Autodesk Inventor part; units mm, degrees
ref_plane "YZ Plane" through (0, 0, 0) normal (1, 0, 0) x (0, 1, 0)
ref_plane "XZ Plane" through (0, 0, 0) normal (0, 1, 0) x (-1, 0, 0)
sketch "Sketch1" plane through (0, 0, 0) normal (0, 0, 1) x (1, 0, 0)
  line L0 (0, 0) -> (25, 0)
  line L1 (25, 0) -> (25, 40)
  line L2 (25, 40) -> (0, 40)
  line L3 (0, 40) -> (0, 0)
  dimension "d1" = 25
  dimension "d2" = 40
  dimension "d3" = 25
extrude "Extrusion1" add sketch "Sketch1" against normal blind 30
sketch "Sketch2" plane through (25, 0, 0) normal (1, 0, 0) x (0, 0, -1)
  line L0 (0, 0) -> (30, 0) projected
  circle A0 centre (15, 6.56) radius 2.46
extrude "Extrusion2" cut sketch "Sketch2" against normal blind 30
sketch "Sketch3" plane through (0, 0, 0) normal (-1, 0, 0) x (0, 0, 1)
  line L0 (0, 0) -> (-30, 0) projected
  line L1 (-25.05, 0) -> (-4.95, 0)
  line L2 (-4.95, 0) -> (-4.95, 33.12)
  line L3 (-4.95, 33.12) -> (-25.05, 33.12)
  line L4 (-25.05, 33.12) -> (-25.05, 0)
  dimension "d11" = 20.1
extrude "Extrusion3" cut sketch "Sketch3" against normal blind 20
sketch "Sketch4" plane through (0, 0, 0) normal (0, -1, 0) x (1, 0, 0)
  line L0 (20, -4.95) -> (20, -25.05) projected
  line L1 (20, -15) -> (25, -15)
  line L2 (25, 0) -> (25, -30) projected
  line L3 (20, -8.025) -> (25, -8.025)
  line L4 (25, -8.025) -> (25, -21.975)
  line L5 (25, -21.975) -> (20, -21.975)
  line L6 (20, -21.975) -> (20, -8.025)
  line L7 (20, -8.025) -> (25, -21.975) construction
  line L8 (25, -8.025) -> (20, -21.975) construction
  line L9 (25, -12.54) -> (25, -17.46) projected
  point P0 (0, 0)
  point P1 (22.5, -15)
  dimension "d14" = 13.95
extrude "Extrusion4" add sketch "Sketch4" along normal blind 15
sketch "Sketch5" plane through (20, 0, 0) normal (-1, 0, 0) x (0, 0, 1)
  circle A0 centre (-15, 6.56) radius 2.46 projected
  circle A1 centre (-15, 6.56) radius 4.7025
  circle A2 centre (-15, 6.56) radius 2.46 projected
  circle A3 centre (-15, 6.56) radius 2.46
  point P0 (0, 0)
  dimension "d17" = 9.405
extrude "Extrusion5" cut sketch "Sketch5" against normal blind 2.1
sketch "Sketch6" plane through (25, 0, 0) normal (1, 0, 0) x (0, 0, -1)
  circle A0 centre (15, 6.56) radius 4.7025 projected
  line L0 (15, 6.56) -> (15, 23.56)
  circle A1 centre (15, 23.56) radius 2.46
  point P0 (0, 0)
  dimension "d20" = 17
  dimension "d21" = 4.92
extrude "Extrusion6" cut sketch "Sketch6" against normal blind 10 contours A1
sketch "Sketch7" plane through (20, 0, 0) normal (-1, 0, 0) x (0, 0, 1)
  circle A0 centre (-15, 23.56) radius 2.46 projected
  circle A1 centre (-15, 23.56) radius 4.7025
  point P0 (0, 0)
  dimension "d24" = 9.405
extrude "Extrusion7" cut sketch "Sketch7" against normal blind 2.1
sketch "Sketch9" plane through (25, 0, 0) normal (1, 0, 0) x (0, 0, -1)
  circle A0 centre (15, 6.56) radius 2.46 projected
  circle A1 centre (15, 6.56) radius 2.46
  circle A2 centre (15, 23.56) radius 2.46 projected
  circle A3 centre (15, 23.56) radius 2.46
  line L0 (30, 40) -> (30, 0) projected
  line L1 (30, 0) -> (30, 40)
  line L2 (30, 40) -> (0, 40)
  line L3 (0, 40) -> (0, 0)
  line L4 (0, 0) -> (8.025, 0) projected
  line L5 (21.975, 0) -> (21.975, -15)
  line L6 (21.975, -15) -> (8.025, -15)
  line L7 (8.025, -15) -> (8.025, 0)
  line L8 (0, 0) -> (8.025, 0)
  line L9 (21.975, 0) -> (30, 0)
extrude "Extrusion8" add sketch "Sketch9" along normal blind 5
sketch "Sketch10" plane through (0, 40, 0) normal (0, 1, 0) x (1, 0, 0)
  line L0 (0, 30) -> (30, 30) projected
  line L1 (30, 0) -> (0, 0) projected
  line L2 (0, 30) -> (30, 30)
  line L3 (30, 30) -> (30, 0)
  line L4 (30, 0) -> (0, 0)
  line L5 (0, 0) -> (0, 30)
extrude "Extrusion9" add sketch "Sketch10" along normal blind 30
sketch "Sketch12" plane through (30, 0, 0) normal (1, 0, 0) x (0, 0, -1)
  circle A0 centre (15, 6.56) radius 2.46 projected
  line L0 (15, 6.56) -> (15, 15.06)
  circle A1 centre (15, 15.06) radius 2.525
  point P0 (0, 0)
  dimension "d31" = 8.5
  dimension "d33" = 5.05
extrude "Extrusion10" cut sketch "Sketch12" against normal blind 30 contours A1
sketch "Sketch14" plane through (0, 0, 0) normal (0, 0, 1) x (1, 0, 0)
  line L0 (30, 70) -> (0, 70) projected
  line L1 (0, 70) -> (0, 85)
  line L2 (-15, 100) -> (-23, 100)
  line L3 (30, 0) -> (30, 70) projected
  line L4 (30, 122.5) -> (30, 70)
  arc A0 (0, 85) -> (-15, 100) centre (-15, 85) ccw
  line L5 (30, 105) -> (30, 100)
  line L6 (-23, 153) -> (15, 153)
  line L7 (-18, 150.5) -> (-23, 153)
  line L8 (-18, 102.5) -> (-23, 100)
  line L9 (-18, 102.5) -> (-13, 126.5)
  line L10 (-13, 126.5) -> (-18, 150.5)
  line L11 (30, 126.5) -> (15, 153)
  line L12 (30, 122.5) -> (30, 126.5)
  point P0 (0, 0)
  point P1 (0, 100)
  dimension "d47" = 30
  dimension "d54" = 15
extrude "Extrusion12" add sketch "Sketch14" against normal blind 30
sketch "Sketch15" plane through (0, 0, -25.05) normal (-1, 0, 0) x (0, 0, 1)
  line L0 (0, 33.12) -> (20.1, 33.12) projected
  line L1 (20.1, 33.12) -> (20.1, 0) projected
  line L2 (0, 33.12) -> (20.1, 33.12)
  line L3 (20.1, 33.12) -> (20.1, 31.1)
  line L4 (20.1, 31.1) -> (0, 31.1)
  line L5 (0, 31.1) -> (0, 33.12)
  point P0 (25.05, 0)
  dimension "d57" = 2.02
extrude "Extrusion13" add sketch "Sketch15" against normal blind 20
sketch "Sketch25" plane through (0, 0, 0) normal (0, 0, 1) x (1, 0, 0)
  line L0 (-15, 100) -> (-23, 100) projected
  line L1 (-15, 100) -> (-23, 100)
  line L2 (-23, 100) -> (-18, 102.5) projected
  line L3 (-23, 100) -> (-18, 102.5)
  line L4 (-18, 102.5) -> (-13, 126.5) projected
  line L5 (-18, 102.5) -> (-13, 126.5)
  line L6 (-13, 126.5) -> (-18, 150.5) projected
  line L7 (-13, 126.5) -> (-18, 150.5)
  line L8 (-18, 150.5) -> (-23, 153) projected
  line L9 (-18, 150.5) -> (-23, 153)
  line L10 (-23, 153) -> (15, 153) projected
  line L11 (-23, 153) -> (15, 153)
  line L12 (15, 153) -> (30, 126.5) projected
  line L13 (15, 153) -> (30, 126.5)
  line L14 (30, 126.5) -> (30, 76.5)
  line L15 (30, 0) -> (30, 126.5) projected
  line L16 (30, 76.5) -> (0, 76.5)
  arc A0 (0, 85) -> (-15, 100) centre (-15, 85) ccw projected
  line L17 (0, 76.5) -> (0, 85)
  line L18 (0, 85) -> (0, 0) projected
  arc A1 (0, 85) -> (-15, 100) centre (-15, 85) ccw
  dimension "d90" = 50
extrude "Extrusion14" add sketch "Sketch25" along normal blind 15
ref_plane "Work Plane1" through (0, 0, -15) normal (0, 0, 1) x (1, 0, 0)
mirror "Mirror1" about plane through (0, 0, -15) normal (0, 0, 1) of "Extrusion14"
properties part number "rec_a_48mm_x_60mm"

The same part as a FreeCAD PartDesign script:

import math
import FreeCAD as App
import Part
import Sketcher
Q = App.Units.Quantity


def add_polygon(sketch, points):
    """Adds a closed chain of lines whose ends are joined by coincident constraints."""
    first, n = sketch.GeometryCount, len(points)
    for a, b in zip(points, points[1:] + points[:1]):
        sketch.addGeometry(Part.LineSegment(App.Vector(*a, 0), App.Vector(*b, 0)), False)
    for i in range(n):
        sketch.addConstraint(Sketcher.Constraint("Coincident", first + i, 2, first + (i + 1) % n, 1))

doc = App.newDocument("Part")
body = doc.addObject("PartDesign::Body", "Body")

# Sketch on XY plane
sketch1 = body.newObject("Sketcher::SketchObject", "Sketch")
sketch1.AttachmentSupport = (doc.getObject("XY_Plane"), [""])
sketch1.MapMode = "FlatFace"
add_polygon(sketch1, [(0, 40), (0, 0), (25, 0), (25, 40)])  # lines 0-3
sketch1.addConstraint(Sketcher.Constraint("Vertical", 0))
sketch1.addConstraint(Sketcher.Constraint("Horizontal", 1))
sketch1.addConstraint(Sketcher.Constraint("Vertical", 2))
sketch1.addConstraint(Sketcher.Constraint("Horizontal", 3))
sketch1.addConstraint(Sketcher.Constraint("Coincident", 0, 2, -1, 1))
sketch1.addConstraint(Sketcher.Constraint("DistanceX", 1, 1, 1, 2, Q("25 mm")))
sketch1.addConstraint(Sketcher.Constraint("DistanceY", 0, 2, 0, 1, Q("40 mm")))
pad1 = body.newObject("PartDesign::Pad", "Pad")
pad1.Profile = sketch1
pad1.Length = 30
pad1.Reversed = True

# Sketch on YZ plane
sketch2 = body.newObject("Sketcher::SketchObject", "Sketch001")
sketch2.AttachmentSupport = (doc.getObject("YZ_Plane"), [""])
sketch2.MapMode = "FlatFace"
sketch2.AttachmentOffset = App.Placement(App.Vector(0, 0, 25), App.Rotation())
sketch2.addGeometry(Part.Circle(App.Vector(6.6, -15, 0), App.Vector(0, 0, 1), 2.5), False)
sketch2.addConstraint(Sketcher.Constraint("Diameter", 0, Q("4.92 mm")))
sketch2.addConstraint(Sketcher.Constraint("DistanceY", 0, 3, -1, 1, Q("15 mm")))
sketch2.addConstraint(Sketcher.Constraint("DistanceX", -1, 1, 0, 3, Q("6.56 mm")))
pocket1 = body.newObject("PartDesign::Pocket", "Pocket")
pocket1.Profile = sketch2
pocket1.Length = 30

# Sketch on YZ plane
sketch3 = body.newObject("Sketcher::SketchObject", "Sketch002")
sketch3.AttachmentSupport = (doc.getObject("YZ_Plane"), [""])
sketch3.MapMode = "FlatFace"
add_polygon(sketch3, [(0, -25), (0, -5), (33, -5), (33, -25)])  # lines 0-3
sketch3.addConstraint(Sketcher.Constraint("Vertical", 0))
sketch3.addConstraint(Sketcher.Constraint("Horizontal", 1))
sketch3.addConstraint(Sketcher.Constraint("Vertical", 2))
sketch3.addConstraint(Sketcher.Constraint("Horizontal", 3))
sketch3.addConstraint(Sketcher.Constraint("PointOnObject", 0, 2, -2))
sketch3.addConstraint(Sketcher.Constraint("DistanceY", 0, 1, 0, 2, Q("20.1 mm")))
sketch3.addConstraint(Sketcher.Constraint("DistanceX", 1, 1, 1, 2, Q("33.12 mm")))
sketch3.addConstraint(Sketcher.Constraint("DistanceY", 0, 2, -1, 1, Q("4.95 mm")))
pocket2 = body.newObject("PartDesign::Pocket", "Pocket001")
pocket2.Profile = sketch3
pocket2.Length = 20
pocket2.Reversed = True

# Sketch on XZ plane
sketch4 = body.newObject("Sketcher::SketchObject", "Sketch003")
sketch4.AttachmentSupport = (doc.getObject("XZ_Plane"), [""])
sketch4.MapMode = "FlatFace"
add_polygon(sketch4, [(25, -8), (20, -8), (20, -22), (25, -22)])  # lines 0-3
sketch4.addConstraint(Sketcher.Constraint("Horizontal", 0))
sketch4.addConstraint(Sketcher.Constraint("Vertical", 1))
sketch4.addConstraint(Sketcher.Constraint("Horizontal", 2))
sketch4.addConstraint(Sketcher.Constraint("Vertical", 3))
sketch4.addConstraint(Sketcher.Constraint("DistanceY", 1, 2, 1, 1, Q("13.95 mm")))
sketch4.addConstraint(Sketcher.Constraint("DistanceX", 0, 2, 0, 1, Q("5 mm")))
sketch4.addConstraint(Sketcher.Constraint("DistanceX", -1, 1, 0, 2, Q("20 mm")))
sketch4.addConstraint(Sketcher.Constraint("DistanceY", 0, 2, -1, 1, Q("8.025 mm")))
pad2 = body.newObject("PartDesign::Pad", "Pad001")
pad2.Profile = sketch4
pad2.Length = 15

# Sketch on YZ plane
sketch5 = body.newObject("Sketcher::SketchObject", "Sketch004")
sketch5.AttachmentSupport = (doc.getObject("YZ_Plane"), [""])
sketch5.MapMode = "FlatFace"
sketch5.AttachmentOffset = App.Placement(App.Vector(0, 0, 20), App.Rotation())
sketch5.addGeometry(Part.Circle(App.Vector(6.6, -15, 0), App.Vector(0, 0, 1), 4.7), False)
sketch5.addGeometry(Part.Circle(App.Vector(6.6, -15, 0), App.Vector(0, 0, 1), 2.5), False)
sketch5.addConstraint(Sketcher.Constraint("Coincident", 1, 3, 0, 3))
sketch5.addConstraint(Sketcher.Constraint("Diameter", 0, Q("9.405 mm")))
sketch5.addConstraint(Sketcher.Constraint("Diameter", 1, Q("4.92 mm")))
sketch5.addConstraint(Sketcher.Constraint("DistanceY", 0, 3, -1, 1, Q("15 mm")))
sketch5.addConstraint(Sketcher.Constraint("DistanceX", -1, 1, 0, 3, Q("6.56 mm")))
pocket3 = body.newObject("PartDesign::Pocket", "Pocket002")
pocket3.Profile = sketch5
pocket3.Length = 2.1
pocket3.Reversed = True

# Sketch on YZ plane
sketch6 = body.newObject("Sketcher::SketchObject", "Sketch005")
sketch6.AttachmentSupport = (doc.getObject("YZ_Plane"), [""])
sketch6.MapMode = "FlatFace"
sketch6.AttachmentOffset = App.Placement(App.Vector(0, 0, 25), App.Rotation())
sketch6.addGeometry(Part.Circle(App.Vector(23.6, -15, 0), App.Vector(0, 0, 1), 2.5), False)
sketch6.addConstraint(Sketcher.Constraint("Diameter", 0, Q("4.92 mm")))
sketch6.addConstraint(Sketcher.Constraint("DistanceY", 0, 3, -1, 1, Q("15 mm")))
sketch6.addConstraint(Sketcher.Constraint("DistanceX", -1, 1, 0, 3, Q("23.56 mm")))
pocket4 = body.newObject("PartDesign::Pocket", "Pocket003")
pocket4.Profile = sketch6
pocket4.Length = 10

# Sketch on YZ plane
sketch7 = body.newObject("Sketcher::SketchObject", "Sketch006")
sketch7.AttachmentSupport = (doc.getObject("YZ_Plane"), [""])
sketch7.MapMode = "FlatFace"
sketch7.AttachmentOffset = App.Placement(App.Vector(0, 0, 20), App.Rotation())
sketch7.addGeometry(Part.Circle(App.Vector(23.6, -15, 0), App.Vector(0, 0, 1), 4.7), False)
sketch7.addGeometry(Part.Circle(App.Vector(23.6, -15, 0), App.Vector(0, 0, 1), 2.5), False)
sketch7.addConstraint(Sketcher.Constraint("Coincident", 1, 3, 0, 3))
sketch7.addConstraint(Sketcher.Constraint("Diameter", 0, Q("9.405 mm")))
sketch7.addConstraint(Sketcher.Constraint("Diameter", 1, Q("4.92 mm")))
sketch7.addConstraint(Sketcher.Constraint("DistanceY", 0, 3, -1, 1, Q("15 mm")))
sketch7.addConstraint(Sketcher.Constraint("DistanceX", -1, 1, 0, 3, Q("23.56 mm")))
pocket5 = body.newObject("PartDesign::Pocket", "Pocket004")
pocket5.Profile = sketch7
pocket5.Length = 2.1
pocket5.Reversed = True

# Sketch on YZ plane
sketch8 = body.newObject("Sketcher::SketchObject", "Sketch007")
sketch8.AttachmentSupport = (doc.getObject("YZ_Plane"), [""])
sketch8.MapMode = "FlatFace"
sketch8.AttachmentOffset = App.Placement(App.Vector(0, 0, 25), App.Rotation())
add_polygon(sketch8, [(0, -30), (40, -30), (40, 0), (0, 0), (0, -8), (-15, -8), (-15, -22), (0, -22)])  # lines 0-7
sketch8.addGeometry(Part.Circle(App.Vector(6.6, -15, 0), App.Vector(0, 0, 1), 2.5), False)  # 8
sketch8.addGeometry(Part.Circle(App.Vector(23.6, -15, 0), App.Vector(0, 0, 1), 2.5), False)  # 9
sketch8.addConstraint(Sketcher.Constraint("Horizontal", 0))
sketch8.addConstraint(Sketcher.Constraint("Vertical", 1))
sketch8.addConstraint(Sketcher.Constraint("Horizontal", 2))
sketch8.addConstraint(Sketcher.Constraint("Vertical", 3))
sketch8.addConstraint(Sketcher.Constraint("Horizontal", 4))
sketch8.addConstraint(Sketcher.Constraint("Vertical", 5))
sketch8.addConstraint(Sketcher.Constraint("Horizontal", 6))
sketch8.addConstraint(Sketcher.Constraint("Vertical", 7))
sketch8.addConstraint(Sketcher.Constraint("Coincident", 2, 2, -1, 1))
sketch8.addConstraint(Sketcher.Constraint("Equal", 8, 9))
sketch8.addConstraint(Sketcher.Constraint("PointOnObject", 6, 2, -2))
sketch8.addConstraint(Sketcher.Constraint("Horizontal", 8, 3, 9, 3))
sketch8.addConstraint(Sketcher.Constraint("Equal", 3, 7))
sketch8.addConstraint(Sketcher.Constraint("Diameter", 8, Q("4.92 mm")))
sketch8.addConstraint(Sketcher.Constraint("DistanceX", 0, 1, 0, 2, Q("40 mm")))
sketch8.addConstraint(Sketcher.Constraint("DistanceX", 4, 2, 4, 1, Q("15 mm")))
sketch8.addConstraint(Sketcher.Constraint("DistanceY", 1, 1, 1, 2, Q("30 mm")))
sketch8.addConstraint(Sketcher.Constraint("DistanceY", 8, 3, -1, 1, Q("15 mm")))
sketch8.addConstraint(Sketcher.Constraint("DistanceX", 8, 3, 9, 3, Q("17 mm")))
sketch8.addConstraint(Sketcher.Constraint("DistanceY", 5, 2, 5, 1, Q("13.95 mm")))
sketch8.addConstraint(Sketcher.Constraint("DistanceX", -1, 1, 8, 3, Q("6.56 mm")))
pad3 = body.newObject("PartDesign::Pad", "Pad002")
pad3.Profile = sketch8
pad3.Length = 5

# Sketch on XZ plane
sketch9 = body.newObject("Sketcher::SketchObject", "Sketch008")
sketch9.AttachmentSupport = (doc.getObject("XZ_Plane"), [""])
sketch9.MapMode = "FlatFace"
sketch9.AttachmentOffset = App.Placement(App.Vector(0, 0, -40), App.Rotation())
add_polygon(sketch9, [(30, -30), (0, -30), (0, 0), (30, 0)])  # lines 0-3
sketch9.addConstraint(Sketcher.Constraint("Horizontal", 0))
sketch9.addConstraint(Sketcher.Constraint("Vertical", 1))
sketch9.addConstraint(Sketcher.Constraint("Horizontal", 2))
sketch9.addConstraint(Sketcher.Constraint("Vertical", 3))
sketch9.addConstraint(Sketcher.Constraint("Coincident", 1, 2, -1, 1))
sketch9.addConstraint(Sketcher.Constraint("Equal", 2, 1))
sketch9.addConstraint(Sketcher.Constraint("DistanceX", 0, 2, 0, 1, Q("30 mm")))
pad4 = body.newObject("PartDesign::Pad", "Pad003")
pad4.Profile = sketch9
pad4.Length = 30
pad4.Reversed = True

# Sketch on YZ plane
sketch10 = body.newObject("Sketcher::SketchObject", "Sketch009")
sketch10.AttachmentSupport = (doc.getObject("YZ_Plane"), [""])
sketch10.MapMode = "FlatFace"
sketch10.AttachmentOffset = App.Placement(App.Vector(0, 0, 30), App.Rotation())
sketch10.addGeometry(Part.Circle(App.Vector(15.1, -15, 0), App.Vector(0, 0, 1), 2.5), False)
sketch10.addConstraint(Sketcher.Constraint("Diameter", 0, Q("5.05 mm")))
sketch10.addConstraint(Sketcher.Constraint("DistanceY", 0, 3, -1, 1, Q("15 mm")))
sketch10.addConstraint(Sketcher.Constraint("DistanceX", -1, 1, 0, 3, Q("15.06 mm")))
pocket6 = body.newObject("PartDesign::Pocket", "Pocket005")
pocket6.Profile = sketch10
pocket6.Length = 30

# Sketch on XY plane
sketch11 = body.newObject("Sketcher::SketchObject", "Sketch010")
sketch11.AttachmentSupport = (doc.getObject("XY_Plane"), [""])
sketch11.MapMode = "FlatFace"
sketch11.addGeometry(Part.LineSegment(App.Vector(0, 70, 0), App.Vector(30, 70, 0)), False)
sketch11.addGeometry(Part.LineSegment(App.Vector(30, 70, 0), App.Vector(30, 126, 0)), False)
sketch11.addGeometry(Part.LineSegment(App.Vector(30, 126, 0), App.Vector(15, 153, 0)), False)
sketch11.addGeometry(Part.LineSegment(App.Vector(15, 153, 0), App.Vector(-23, 153, 0)), False)
sketch11.addGeometry(Part.LineSegment(App.Vector(-23, 153, 0), App.Vector(-18, 150, 0)), False)
sketch11.addGeometry(Part.LineSegment(App.Vector(-18, 150, 0), App.Vector(-13, 126, 0)), False)
sketch11.addGeometry(Part.LineSegment(App.Vector(-13, 126, 0), App.Vector(-18, 102, 0)), False)
sketch11.addGeometry(Part.LineSegment(App.Vector(-18, 102, 0), App.Vector(-23, 100, 0)), False)
sketch11.addGeometry(Part.LineSegment(App.Vector(-23, 100, 0), App.Vector(-15, 100, 0)), False)
sketch11.addGeometry(Part.ArcOfCircle(Part.Circle(App.Vector(-15, 85, 0), App.Vector(0, 0, 1), 15), math.radians(0), math.radians(90)), False)
sketch11.addGeometry(Part.LineSegment(App.Vector(0, 85, 0), App.Vector(0, 70, 0)), False)
sketch11.addConstraint(Sketcher.Constraint("Coincident", 0, 2, 1, 1))
sketch11.addConstraint(Sketcher.Constraint("Coincident", 1, 2, 2, 1))
sketch11.addConstraint(Sketcher.Constraint("Coincident", 2, 2, 3, 1))
sketch11.addConstraint(Sketcher.Constraint("Coincident", 3, 2, 4, 1))
sketch11.addConstraint(Sketcher.Constraint("Coincident", 4, 2, 5, 1))
sketch11.addConstraint(Sketcher.Constraint("Coincident", 5, 2, 6, 1))
sketch11.addConstraint(Sketcher.Constraint("Coincident", 6, 2, 7, 1))
sketch11.addConstraint(Sketcher.Constraint("Coincident", 7, 2, 8, 1))
sketch11.addConstraint(Sketcher.Constraint("Tangent", 8, 2, 9, 2))
sketch11.addConstraint(Sketcher.Constraint("Tangent", 9, 1, 10, 1))
sketch11.addConstraint(Sketcher.Constraint("Coincident", 10, 2, 0, 1))
sketch11.addConstraint(Sketcher.Constraint("Horizontal", 0))
sketch11.addConstraint(Sketcher.Constraint("Vertical", 1))
sketch11.addConstraint(Sketcher.Constraint("Horizontal", 3))
sketch11.addConstraint(Sketcher.Constraint("Horizontal", 8))
sketch11.addConstraint(Sketcher.Constraint("Vertical", 10))
sketch11.addConstraint(Sketcher.Constraint("PointOnObject", 9, 1, -2))
sketch11.addConstraint(Sketcher.Constraint("Horizontal", 1, 2, 5, 2))
sketch11.addConstraint(Sketcher.Constraint("Vertical", 4, 2, 6, 2))
sketch11.addConstraint(Sketcher.Constraint("Vertical", 3, 2, 7, 2))
sketch11.addConstraint(Sketcher.Constraint("Equal", 5, 6))
sketch11.addConstraint(Sketcher.Constraint("Equal", 4, 7))
sketch11.addConstraint(Sketcher.Constraint("Radius", 9, Q("15 mm")))
sketch11.addConstraint(Sketcher.Constraint("DistanceX", 0, 1, 0, 2, Q("30 mm")))
sketch11.addConstraint(Sketcher.Constraint("DistanceY", 10, 2, 10, 1, Q("15 mm")))
sketch11.addConstraint(Sketcher.Constraint("DistanceX", -1, 1, 2, 2, Q("15 mm")))
sketch11.addConstraint(Sketcher.Constraint("DistanceX", 3, 2, 3, 1, Q("38 mm")))
sketch11.addConstraint(Sketcher.Constraint("DistanceY", 1, 1, 1, 2, Q("56.5 mm")))
sketch11.addConstraint(Sketcher.Constraint("DistanceY", -1, 1, 9, 3, Q("85 mm")))
sketch11.addConstraint(Sketcher.Constraint("DistanceX", 4, 2, -1, 1, Q("18 mm")))
sketch11.addConstraint(Sketcher.Constraint("DistanceX", 5, 2, -1, 1, Q("13 mm")))
sketch11.addConstraint(Sketcher.Constraint("DistanceY", 1, 2, 4, 2, Q("24 mm")))
pad5 = body.newObject("PartDesign::Pad", "Pad004")
pad5.Profile = sketch11
pad5.Length = 30
pad5.Reversed = True

# Sketch on YZ plane
sketch12 = body.newObject("Sketcher::SketchObject", "Sketch011")
sketch12.AttachmentSupport = (doc.getObject("YZ_Plane"), [""])
sketch12.MapMode = "FlatFace"
add_polygon(sketch12, [(33.1, -5), (33.1, -25.1), (31.1, -25.1), (31.1, -5)])  # lines 0-3
sketch12.addConstraint(Sketcher.Constraint("Vertical", 0))
sketch12.addConstraint(Sketcher.Constraint("Horizontal", 1))
sketch12.addConstraint(Sketcher.Constraint("Vertical", 2))
sketch12.addConstraint(Sketcher.Constraint("Horizontal", 3))
sketch12.addConstraint(Sketcher.Constraint("DistanceX", 1, 2, 1, 1, Q("2.02 mm")))
sketch12.addConstraint(Sketcher.Constraint("DistanceY", 0, 2, 0, 1, Q("20.1 mm")))
sketch12.addConstraint(Sketcher.Constraint("DistanceX", -1, 1, 1, 2, Q("31.1 mm")))
sketch12.addConstraint(Sketcher.Constraint("DistanceY", 0, 2, -1, 1, Q("25.05 mm")))
pad6 = body.newObject("PartDesign::Pad", "Pad005")
pad6.Profile = sketch12
pad6.Length = 20

# Sketch on XY plane
sketch13 = body.newObject("Sketcher::SketchObject", "Sketch012")
sketch13.AttachmentSupport = (doc.getObject("XY_Plane"), [""])
sketch13.MapMode = "FlatFace"
sketch13.addGeometry(Part.LineSegment(App.Vector(-23, 100, 0), App.Vector(-15, 100, 0)), False)
sketch13.addGeometry(Part.ArcOfCircle(Part.Circle(App.Vector(-15, 85, 0), App.Vector(0, 0, 1), 15), math.radians(0), math.radians(90)), False)
sketch13.addGeometry(Part.LineSegment(App.Vector(0, 85, 0), App.Vector(0, 76, 0)), False)
sketch13.addGeometry(Part.LineSegment(App.Vector(0, 76, 0), App.Vector(30, 76, 0)), False)
sketch13.addGeometry(Part.LineSegment(App.Vector(30, 76, 0), App.Vector(30, 126, 0)), False)
sketch13.addGeometry(Part.LineSegment(App.Vector(30, 126, 0), App.Vector(15, 153, 0)), False)
sketch13.addGeometry(Part.LineSegment(App.Vector(15, 153, 0), App.Vector(-23, 153, 0)), False)
sketch13.addGeometry(Part.LineSegment(App.Vector(-23, 153, 0), App.Vector(-18, 150, 0)), False)
sketch13.addGeometry(Part.LineSegment(App.Vector(-18, 150, 0), App.Vector(-13, 126, 0)), False)
sketch13.addGeometry(Part.LineSegment(App.Vector(-13, 126, 0), App.Vector(-18, 102, 0)), False)
sketch13.addGeometry(Part.LineSegment(App.Vector(-18, 102, 0), App.Vector(-23, 100, 0)), False)
sketch13.addConstraint(Sketcher.Constraint("Tangent", 0, 2, 1, 2))
sketch13.addConstraint(Sketcher.Constraint("Tangent", 1, 1, 2, 1))
sketch13.addConstraint(Sketcher.Constraint("Coincident", 2, 2, 3, 1))
sketch13.addConstraint(Sketcher.Constraint("Coincident", 3, 2, 4, 1))
sketch13.addConstraint(Sketcher.Constraint("Coincident", 4, 2, 5, 1))
sketch13.addConstraint(Sketcher.Constraint("Coincident", 5, 2, 6, 1))
sketch13.addConstraint(Sketcher.Constraint("Coincident", 6, 2, 7, 1))
sketch13.addConstraint(Sketcher.Constraint("Coincident", 7, 2, 8, 1))
sketch13.addConstraint(Sketcher.Constraint("Coincident", 8, 2, 9, 1))
sketch13.addConstraint(Sketcher.Constraint("Coincident", 9, 2, 10, 1))
sketch13.addConstraint(Sketcher.Constraint("Coincident", 10, 2, 0, 1))
sketch13.addConstraint(Sketcher.Constraint("Horizontal", 0))
sketch13.addConstraint(Sketcher.Constraint("Vertical", 2))
sketch13.addConstraint(Sketcher.Constraint("Horizontal", 3))
sketch13.addConstraint(Sketcher.Constraint("Vertical", 4))
sketch13.addConstraint(Sketcher.Constraint("Horizontal", 6))
sketch13.addConstraint(Sketcher.Constraint("PointOnObject", 1, 1, -2))
sketch13.addConstraint(Sketcher.Constraint("Horizontal", 4, 2, 8, 2))
sketch13.addConstraint(Sketcher.Constraint("Vertical", 7, 2, 9, 2))
sketch13.addConstraint(Sketcher.Constraint("Vertical", 6, 2, 10, 2))
sketch13.addConstraint(Sketcher.Constraint("Equal", 8, 9))
sketch13.addConstraint(Sketcher.Constraint("Equal", 7, 10))
sketch13.addConstraint(Sketcher.Constraint("DistanceY", 4, 1, 4, 2, Q("50 mm")))
sketch13.addConstraint(Sketcher.Constraint("Radius", 1, Q("15 mm")))
sketch13.addConstraint(Sketcher.Constraint("DistanceX", 0, 1, 0, 2, Q("8 mm")))
sketch13.addConstraint(Sketcher.Constraint("DistanceX", 3, 1, 3, 2, Q("30 mm")))
sketch13.addConstraint(Sketcher.Constraint("DistanceX", 6, 2, 6, 1, Q("38 mm")))
sketch13.addConstraint(Sketcher.Constraint("DistanceY", 2, 2, 2, 1, Q("8.5 mm")))
sketch13.addConstraint(Sketcher.Constraint("DistanceY", -1, 1, 1, 3, Q("85 mm")))
sketch13.addConstraint(Sketcher.Constraint("DistanceX", 7, 2, -1, 1, Q("18 mm")))
sketch13.addConstraint(Sketcher.Constraint("DistanceX", 8, 2, -1, 1, Q("13 mm")))
sketch13.addConstraint(Sketcher.Constraint("DistanceY", 4, 2, 7, 2, Q("24 mm")))
pad7 = body.newObject("PartDesign::Pad", "Pad006")
pad7.Profile = sketch13
pad7.Length = 15
doc.recompute()

datumplane = body.newObject("PartDesign::Plane", "DatumPlane")
datumplane.AttachmentSupport = (doc.getObject("XY_Plane"), [""])
datumplane.MapMode = "FlatFace"
datumplane.AttachmentOffset = App.Placement(App.Vector(0, 0, -15), App.Rotation())
mirrored = body.newObject("PartDesign::Mirrored", "Mirrored")
mirrored.Originals = [pad7]
mirrored.MirrorPlane = (datumplane, [""])
body.Tip = mirrored

doc.recompute()
